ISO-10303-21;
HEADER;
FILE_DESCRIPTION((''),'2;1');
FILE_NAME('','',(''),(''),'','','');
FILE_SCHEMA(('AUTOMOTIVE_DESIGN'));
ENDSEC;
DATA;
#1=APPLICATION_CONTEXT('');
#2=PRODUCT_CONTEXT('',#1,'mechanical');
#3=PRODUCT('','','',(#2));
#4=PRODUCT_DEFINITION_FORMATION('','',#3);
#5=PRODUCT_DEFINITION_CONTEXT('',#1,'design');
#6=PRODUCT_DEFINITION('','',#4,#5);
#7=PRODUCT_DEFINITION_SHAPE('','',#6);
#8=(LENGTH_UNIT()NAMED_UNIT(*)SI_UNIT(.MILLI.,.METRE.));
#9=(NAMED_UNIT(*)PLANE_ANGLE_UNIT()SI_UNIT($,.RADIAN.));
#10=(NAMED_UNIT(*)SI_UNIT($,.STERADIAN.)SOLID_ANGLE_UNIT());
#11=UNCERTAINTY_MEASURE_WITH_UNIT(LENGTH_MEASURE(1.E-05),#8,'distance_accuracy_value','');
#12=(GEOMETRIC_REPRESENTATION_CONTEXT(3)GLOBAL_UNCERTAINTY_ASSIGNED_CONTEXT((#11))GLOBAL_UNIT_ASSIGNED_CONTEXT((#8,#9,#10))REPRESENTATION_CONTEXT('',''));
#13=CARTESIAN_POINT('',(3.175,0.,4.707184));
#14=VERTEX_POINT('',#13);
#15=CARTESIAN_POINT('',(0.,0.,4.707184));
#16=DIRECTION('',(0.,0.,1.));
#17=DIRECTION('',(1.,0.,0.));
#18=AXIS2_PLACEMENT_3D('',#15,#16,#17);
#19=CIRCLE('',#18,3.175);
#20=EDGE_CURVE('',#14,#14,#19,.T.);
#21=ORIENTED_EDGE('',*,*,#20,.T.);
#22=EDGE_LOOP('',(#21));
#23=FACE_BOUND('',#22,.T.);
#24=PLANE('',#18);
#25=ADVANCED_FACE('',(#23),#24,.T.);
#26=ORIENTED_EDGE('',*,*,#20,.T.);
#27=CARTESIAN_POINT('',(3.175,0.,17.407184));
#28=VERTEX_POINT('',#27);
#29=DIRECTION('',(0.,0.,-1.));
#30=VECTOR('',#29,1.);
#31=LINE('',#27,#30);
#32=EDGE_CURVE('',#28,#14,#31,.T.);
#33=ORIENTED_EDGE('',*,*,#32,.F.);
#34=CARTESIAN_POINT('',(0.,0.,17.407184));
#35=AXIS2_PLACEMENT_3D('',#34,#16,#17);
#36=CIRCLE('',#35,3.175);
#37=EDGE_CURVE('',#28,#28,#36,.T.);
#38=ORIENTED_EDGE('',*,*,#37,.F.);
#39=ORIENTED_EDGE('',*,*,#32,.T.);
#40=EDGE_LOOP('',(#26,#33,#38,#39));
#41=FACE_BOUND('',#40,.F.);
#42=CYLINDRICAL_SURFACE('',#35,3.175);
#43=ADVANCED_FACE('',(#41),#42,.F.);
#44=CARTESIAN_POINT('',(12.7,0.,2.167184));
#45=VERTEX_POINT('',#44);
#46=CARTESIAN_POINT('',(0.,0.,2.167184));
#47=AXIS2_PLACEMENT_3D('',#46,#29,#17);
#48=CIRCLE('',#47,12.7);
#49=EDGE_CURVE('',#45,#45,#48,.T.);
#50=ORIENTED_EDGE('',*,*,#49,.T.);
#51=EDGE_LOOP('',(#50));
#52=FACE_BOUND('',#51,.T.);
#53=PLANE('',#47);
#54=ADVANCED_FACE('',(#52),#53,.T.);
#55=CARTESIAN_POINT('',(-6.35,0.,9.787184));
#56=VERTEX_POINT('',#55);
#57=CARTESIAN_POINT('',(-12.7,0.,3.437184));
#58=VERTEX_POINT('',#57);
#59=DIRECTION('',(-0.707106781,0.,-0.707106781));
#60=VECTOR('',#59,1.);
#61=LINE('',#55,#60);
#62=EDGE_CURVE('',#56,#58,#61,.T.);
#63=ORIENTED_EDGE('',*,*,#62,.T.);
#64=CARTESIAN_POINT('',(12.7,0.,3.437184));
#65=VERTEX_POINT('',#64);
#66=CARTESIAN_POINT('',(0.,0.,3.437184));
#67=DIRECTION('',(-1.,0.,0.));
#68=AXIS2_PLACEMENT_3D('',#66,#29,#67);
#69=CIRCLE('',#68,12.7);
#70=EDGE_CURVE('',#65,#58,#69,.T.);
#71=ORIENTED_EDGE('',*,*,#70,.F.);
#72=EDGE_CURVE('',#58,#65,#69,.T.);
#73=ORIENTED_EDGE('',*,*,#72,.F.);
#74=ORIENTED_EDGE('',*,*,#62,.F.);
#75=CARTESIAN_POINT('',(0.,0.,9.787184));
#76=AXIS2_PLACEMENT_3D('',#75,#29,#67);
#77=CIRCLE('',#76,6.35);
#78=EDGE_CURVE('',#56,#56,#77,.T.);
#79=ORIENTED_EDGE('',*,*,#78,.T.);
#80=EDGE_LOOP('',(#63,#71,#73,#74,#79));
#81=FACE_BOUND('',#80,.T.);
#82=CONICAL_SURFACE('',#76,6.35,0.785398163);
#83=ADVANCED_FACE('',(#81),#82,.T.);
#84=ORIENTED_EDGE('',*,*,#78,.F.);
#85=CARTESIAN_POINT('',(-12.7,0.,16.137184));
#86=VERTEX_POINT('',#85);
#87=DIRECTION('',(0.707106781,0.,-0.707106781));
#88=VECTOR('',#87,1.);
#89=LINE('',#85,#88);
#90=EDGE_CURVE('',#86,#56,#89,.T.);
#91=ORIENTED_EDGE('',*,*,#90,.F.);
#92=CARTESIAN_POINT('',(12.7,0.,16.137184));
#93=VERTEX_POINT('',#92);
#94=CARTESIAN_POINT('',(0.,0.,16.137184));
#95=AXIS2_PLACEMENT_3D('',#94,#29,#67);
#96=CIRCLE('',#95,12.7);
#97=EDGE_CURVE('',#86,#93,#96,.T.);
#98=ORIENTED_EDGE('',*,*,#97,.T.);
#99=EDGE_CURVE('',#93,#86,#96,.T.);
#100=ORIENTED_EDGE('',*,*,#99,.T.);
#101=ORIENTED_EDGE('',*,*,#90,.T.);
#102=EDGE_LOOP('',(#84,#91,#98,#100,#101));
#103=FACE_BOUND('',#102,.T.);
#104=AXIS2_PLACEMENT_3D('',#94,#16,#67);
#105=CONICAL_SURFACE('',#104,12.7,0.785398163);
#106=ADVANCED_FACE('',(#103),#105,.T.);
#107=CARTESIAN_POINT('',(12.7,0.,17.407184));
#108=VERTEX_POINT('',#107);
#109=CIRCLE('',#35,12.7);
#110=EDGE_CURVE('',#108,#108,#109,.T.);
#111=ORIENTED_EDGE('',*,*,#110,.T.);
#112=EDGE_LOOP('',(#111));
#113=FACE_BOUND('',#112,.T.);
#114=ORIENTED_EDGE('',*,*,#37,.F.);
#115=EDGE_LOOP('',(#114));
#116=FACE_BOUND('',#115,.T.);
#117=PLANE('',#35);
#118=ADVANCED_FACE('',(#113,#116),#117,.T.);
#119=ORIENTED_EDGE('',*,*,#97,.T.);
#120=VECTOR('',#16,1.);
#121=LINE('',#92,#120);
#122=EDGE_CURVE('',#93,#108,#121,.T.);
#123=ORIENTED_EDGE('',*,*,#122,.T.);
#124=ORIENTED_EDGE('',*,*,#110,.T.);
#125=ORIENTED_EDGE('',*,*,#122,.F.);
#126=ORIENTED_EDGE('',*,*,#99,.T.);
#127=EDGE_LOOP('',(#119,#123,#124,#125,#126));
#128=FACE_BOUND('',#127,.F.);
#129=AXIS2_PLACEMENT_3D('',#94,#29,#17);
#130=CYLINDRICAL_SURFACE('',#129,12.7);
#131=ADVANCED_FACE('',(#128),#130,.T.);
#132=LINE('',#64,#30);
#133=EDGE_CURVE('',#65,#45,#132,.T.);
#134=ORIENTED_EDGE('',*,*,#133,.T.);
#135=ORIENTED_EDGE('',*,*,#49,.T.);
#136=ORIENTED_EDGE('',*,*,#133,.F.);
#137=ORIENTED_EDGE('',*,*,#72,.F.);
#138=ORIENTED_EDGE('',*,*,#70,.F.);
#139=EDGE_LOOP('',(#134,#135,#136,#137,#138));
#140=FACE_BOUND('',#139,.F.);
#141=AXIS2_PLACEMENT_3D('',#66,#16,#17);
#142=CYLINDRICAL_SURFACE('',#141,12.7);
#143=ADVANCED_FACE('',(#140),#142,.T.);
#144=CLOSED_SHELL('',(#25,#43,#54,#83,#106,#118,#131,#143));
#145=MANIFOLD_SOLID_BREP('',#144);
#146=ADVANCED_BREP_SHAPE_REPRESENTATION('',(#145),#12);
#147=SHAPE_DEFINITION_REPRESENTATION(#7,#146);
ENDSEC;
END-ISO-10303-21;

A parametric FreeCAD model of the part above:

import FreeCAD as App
import Part
import Sketcher
from FreeCAD import Vector
Q = App.Units.Quantity

doc = App.newDocument("Part")
params = doc.addObject("Spreadsheet::Sheet", "Params")
for row, (alias, value) in enumerate([
    ("sketch1_width", "0.5 in"),
    ("revolution_angle", "360 deg"),
    ("sketch2_diameter", "1 in"),
    ("pad1_length", "0.05 in"),
    ("sketch3_diameter", "1 in"),
    ("pad2_length", "0.05 in"),
    ("sketch4_diameter", "0.25 in"),
    ("pocket1_length", "0.5 in"),
], start=1):
    params.set(f"A{row}", alias)
    params.set(f"B{row}", "=" + value)
    params.setAlias(f"B{row}", alias)

body = doc.addObject("PartDesign::Body", "Body")

# Sketch on XZ plane
sketch1 = body.newObject("Sketcher::SketchObject", "Sketch")
sketch1.AttachmentSupport = (doc.getObject("XZ_Plane"), [""])
sketch1.MapMode = "FlatFace"
sketch1.addGeometry([
    Part.LineSegment(Vector(0, 3, 0), Vector(0, 16, 0)),  # 0
    Part.LineSegment(Vector(0, 16, 0), Vector(-13, 16, 0)),  # 1
    Part.LineSegment(Vector(-13, 16, 0), Vector(-6, 10, 0)),  # 2
    Part.LineSegment(Vector(-6, 10, 0), Vector(-13, 3, 0)),  # 3
    Part.LineSegment(Vector(-13, 3, 0), Vector(0, 3, 0)),  # 4
], False)
sketch1.addConstraint([
    Sketcher.Constraint("Coincident", 0, 2, 1, 1),
    Sketcher.Constraint("Coincident", 1, 2, 2, 1),
    Sketcher.Constraint("Coincident", 2, 2, 3, 1),
    Sketcher.Constraint("Coincident", 3, 2, 4, 1),
    Sketcher.Constraint("Coincident", 4, 2, 0, 1),
    Sketcher.Constraint("Vertical", 0),
    Sketcher.Constraint("Horizontal", 1),
    Sketcher.Constraint("Horizontal", 4),
    Sketcher.Constraint("PointOnObject", 0, 2, -2),
    Sketcher.Constraint("Perpendicular", 2, 3),
    Sketcher.Constraint("Vertical", 1, 2, 3, 2),
    Sketcher.Constraint("Equal", 4, 0),
    Sketcher.Constraint("Equal", 2, 3),
    Sketcher.Constraint("DistanceX", 1, 2, 1, 1, Q("0.5 in")),
    Sketcher.Constraint("DistanceY", -1, 1, 0, 2, Q("16.137184 mm")),
])
sketch1.setExpression("Constraints[13]", "Params.sketch1_width")
revolution = body.newObject("PartDesign::Revolution", "Revolution")
revolution.Profile = sketch1
revolution.ReferenceAxis = (sketch1, ["V_Axis"])
revolution.setExpression("Angle", "Params.revolution_angle")

# Sketch on XY plane
sketch2 = body.newObject("Sketcher::SketchObject", "Sketch001")
sketch2.AttachmentSupport = (doc.getObject("XY_Plane"), [""])
sketch2.MapMode = "FlatFace"
sketch2.AttachmentOffset = App.Placement(Vector(0, 0, 16.137184), App.Rotation())
sketch2.addGeometry(Part.Circle(Vector(0, 0, 0), Vector(0, 0, 1), 13), False)
sketch2.addConstraint([
    Sketcher.Constraint("Coincident", 0, 3, -1, 1),
    Sketcher.Constraint("Diameter", 0, Q("1 in")),
])
sketch2.setExpression("Constraints[1]", "Params.sketch2_diameter")
pad1 = body.newObject("PartDesign::Pad", "Pad")
pad1.Profile = sketch2
pad1.setExpression("Length", "Params.pad1_length")

# Sketch on XY plane
sketch3 = body.newObject("Sketcher::SketchObject", "Sketch002")
sketch3.AttachmentSupport = (doc.getObject("XY_Plane"), [""])
sketch3.MapMode = "FlatFace"
sketch3.AttachmentOffset = App.Placement(Vector(0, 0, 3.437184), App.Rotation())
sketch3.addGeometry(Part.Circle(Vector(0, 0, 0), Vector(0, 0, 1), 13), False)
sketch3.addConstraint([
    Sketcher.Constraint("Coincident", 0, 3, -1, 1),
    Sketcher.Constraint("Diameter", 0, Q("1 in")),
])
sketch3.setExpression("Constraints[1]", "Params.sketch3_diameter")
pad2 = body.newObject("PartDesign::Pad", "Pad001")
pad2.Profile = sketch3
pad2.setExpression("Length", "Params.pad2_length")
pad2.Reversed = True

# Sketch on XY plane
sketch4 = body.newObject("Sketcher::SketchObject", "Sketch003")
sketch4.AttachmentSupport = (doc.getObject("XY_Plane"), [""])
sketch4.MapMode = "FlatFace"
sketch4.AttachmentOffset = App.Placement(Vector(0, 0, 17.407184), App.Rotation())
sketch4.addGeometry(Part.Circle(Vector(0, 0, 0), Vector(0, 0, 1), 3.2), False)
sketch4.addConstraint([
    Sketcher.Constraint("Coincident", 0, 3, -1, 1),
    Sketcher.Constraint("Diameter", 0, Q("0.25 in")),
])
sketch4.setExpression("Constraints[1]", "Params.sketch4_diameter")
pocket1 = body.newObject("PartDesign::Pocket", "Pocket")
pocket1.Profile = sketch4
pocket1.setExpression("Length", "Params.pocket1_length")

doc.recompute()
